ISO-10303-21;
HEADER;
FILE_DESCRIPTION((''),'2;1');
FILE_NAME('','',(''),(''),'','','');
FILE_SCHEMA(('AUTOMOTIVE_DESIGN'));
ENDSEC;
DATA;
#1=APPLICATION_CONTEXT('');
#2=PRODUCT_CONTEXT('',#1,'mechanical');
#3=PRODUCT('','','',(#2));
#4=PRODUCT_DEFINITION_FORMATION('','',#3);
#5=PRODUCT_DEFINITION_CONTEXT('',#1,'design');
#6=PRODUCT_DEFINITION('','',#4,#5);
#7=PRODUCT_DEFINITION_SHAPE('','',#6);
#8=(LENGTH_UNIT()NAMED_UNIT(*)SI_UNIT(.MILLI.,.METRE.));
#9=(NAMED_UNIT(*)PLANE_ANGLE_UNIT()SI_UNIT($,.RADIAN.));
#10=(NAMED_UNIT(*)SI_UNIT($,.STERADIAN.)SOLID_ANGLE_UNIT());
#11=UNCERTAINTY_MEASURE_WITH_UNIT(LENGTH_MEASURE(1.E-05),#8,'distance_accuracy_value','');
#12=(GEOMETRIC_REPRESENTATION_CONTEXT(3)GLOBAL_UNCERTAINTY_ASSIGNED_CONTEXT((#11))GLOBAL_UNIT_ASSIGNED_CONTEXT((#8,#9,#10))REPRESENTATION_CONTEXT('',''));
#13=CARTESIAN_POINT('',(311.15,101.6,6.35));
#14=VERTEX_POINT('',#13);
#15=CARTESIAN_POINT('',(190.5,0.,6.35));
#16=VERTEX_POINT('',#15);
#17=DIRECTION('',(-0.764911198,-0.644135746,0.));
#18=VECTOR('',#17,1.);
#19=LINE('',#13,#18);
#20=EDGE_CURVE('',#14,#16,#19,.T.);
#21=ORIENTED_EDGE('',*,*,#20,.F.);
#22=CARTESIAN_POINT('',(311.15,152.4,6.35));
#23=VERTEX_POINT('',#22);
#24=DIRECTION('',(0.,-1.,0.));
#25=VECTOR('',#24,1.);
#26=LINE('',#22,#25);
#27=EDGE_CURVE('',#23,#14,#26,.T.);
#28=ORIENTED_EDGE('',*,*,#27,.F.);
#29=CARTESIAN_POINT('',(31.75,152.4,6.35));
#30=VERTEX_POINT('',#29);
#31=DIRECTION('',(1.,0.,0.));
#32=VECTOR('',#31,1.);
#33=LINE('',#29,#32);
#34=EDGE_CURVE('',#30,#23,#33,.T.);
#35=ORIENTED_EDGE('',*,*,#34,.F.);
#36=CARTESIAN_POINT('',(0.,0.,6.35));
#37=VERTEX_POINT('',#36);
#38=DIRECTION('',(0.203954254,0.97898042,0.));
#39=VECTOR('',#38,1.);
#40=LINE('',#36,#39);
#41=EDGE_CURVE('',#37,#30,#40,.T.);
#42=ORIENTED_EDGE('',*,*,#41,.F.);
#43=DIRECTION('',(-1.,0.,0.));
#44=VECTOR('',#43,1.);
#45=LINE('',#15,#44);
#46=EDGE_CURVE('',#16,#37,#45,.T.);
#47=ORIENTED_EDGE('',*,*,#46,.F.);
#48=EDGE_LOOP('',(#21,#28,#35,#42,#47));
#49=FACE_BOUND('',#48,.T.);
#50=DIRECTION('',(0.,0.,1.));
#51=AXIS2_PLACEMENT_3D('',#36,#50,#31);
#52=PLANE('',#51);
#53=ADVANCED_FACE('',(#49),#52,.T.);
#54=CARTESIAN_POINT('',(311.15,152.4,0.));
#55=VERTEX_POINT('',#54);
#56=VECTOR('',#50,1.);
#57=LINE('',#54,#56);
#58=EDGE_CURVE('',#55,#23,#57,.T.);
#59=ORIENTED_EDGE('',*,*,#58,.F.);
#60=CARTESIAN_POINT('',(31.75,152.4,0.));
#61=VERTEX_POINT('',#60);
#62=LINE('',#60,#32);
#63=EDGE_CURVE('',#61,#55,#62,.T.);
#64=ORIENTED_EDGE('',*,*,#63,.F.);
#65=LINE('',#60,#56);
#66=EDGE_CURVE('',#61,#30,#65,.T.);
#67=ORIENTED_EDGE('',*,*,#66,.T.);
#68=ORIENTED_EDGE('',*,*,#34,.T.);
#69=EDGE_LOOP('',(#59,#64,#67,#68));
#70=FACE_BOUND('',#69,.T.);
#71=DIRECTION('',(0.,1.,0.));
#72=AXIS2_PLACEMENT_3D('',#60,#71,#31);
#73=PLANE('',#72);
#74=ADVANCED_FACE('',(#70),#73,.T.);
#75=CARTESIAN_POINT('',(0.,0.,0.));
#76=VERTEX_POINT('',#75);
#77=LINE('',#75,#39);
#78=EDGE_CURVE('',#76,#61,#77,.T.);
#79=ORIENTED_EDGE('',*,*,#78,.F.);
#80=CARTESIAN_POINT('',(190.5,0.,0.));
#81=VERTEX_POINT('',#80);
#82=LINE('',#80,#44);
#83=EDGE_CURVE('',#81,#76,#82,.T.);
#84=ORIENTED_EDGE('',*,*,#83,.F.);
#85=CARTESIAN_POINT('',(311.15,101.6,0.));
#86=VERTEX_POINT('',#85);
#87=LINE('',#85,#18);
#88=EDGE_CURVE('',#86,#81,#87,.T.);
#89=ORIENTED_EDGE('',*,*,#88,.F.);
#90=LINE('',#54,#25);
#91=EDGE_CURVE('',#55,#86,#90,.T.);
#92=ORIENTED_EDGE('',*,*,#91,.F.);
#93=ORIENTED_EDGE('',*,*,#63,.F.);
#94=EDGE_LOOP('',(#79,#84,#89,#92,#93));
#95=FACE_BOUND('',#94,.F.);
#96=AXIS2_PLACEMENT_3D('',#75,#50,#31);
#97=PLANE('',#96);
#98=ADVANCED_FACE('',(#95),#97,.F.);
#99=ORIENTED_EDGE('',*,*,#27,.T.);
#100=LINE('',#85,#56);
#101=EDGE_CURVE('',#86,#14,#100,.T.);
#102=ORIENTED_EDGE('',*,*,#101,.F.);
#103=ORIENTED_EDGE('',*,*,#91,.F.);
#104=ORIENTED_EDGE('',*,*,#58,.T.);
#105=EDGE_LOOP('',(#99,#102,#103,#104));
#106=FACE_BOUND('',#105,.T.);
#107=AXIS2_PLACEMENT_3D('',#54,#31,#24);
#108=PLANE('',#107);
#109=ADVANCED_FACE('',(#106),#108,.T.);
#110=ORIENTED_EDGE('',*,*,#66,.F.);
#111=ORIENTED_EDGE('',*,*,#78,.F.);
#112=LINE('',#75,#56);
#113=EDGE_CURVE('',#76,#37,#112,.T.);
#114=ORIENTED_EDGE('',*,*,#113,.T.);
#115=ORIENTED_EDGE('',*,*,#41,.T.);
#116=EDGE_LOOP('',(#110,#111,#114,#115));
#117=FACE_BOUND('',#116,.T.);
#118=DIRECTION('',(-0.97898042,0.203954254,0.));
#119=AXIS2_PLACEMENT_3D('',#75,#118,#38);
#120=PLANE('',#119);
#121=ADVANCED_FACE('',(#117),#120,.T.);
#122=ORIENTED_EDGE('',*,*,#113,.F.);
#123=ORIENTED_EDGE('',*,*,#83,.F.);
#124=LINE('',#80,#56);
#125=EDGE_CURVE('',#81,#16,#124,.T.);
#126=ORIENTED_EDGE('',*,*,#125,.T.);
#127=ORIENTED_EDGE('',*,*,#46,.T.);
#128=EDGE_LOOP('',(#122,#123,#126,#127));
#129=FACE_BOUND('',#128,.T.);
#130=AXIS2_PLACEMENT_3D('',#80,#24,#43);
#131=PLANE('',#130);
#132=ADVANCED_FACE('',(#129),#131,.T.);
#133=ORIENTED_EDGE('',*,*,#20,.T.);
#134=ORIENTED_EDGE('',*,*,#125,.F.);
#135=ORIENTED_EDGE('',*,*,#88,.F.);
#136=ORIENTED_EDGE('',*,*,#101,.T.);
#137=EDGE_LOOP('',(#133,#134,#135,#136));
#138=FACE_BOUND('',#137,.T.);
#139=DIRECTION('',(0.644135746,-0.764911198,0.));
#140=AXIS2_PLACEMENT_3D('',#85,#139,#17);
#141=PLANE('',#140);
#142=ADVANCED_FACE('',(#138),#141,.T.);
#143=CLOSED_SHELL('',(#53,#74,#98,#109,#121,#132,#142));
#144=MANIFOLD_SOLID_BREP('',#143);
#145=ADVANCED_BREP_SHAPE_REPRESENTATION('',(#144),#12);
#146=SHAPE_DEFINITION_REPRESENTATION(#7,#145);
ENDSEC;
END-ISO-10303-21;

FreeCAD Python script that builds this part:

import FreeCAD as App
import Part
import Sketcher

V = App.Vector
Q = App.Units.Quantity

doc = App.newDocument("Part")
body = doc.addObject("PartDesign::Body", "Body")

sketch1 = doc.addObject("Sketcher::SketchObject", "Sketch")
body.addObject(sketch1)
sketch1.AttachmentSupport = (doc.XY_Plane, [""])
sketch1.MapMode = "FlatFace"
sketch1.addGeometry([
    Part.LineSegment(V(31.75, 152.4, 0), V(0, 0, 0)),
    Part.LineSegment(V(0, 0, 0), V(190.5, 0, 0)),
    Part.LineSegment(V(190.5, 0, 0), V(311.15, 101.6, 0)),
    Part.LineSegment(V(311.15, 101.6, 0), V(311.15, 152.4, 0)),
    Part.LineSegment(V(311.15, 152.4, 0), V(31.75, 152.4, 0)),
], False)
sketch1.addConstraint([
    Sketcher.Constraint("Coincident", 0, 2, 1, 1),
    Sketcher.Constraint("Coincident", 1, 2, 2, 1),
    Sketcher.Constraint("Coincident", 2, 2, 3, 1),
    Sketcher.Constraint("Coincident", 3, 2, 4, 1),
    Sketcher.Constraint("Coincident", 4, 2, 0, 1),
    Sketcher.Constraint("Horizontal", 1),
    Sketcher.Constraint("Vertical", 3),
    Sketcher.Constraint("Horizontal", 4),
    Sketcher.Constraint("Coincident", 0, 2, -1, 1),
    Sketcher.Constraint("DistanceX", 4, 2, 4, 1, Q("11 in")),
    Sketcher.Constraint("DistanceY", 3, 1, 3, 2, Q("2 in")),
    Sketcher.Constraint("DistanceX", 1, 1, 1, 2, Q("7.5 in")),
    Sketcher.Constraint("DistanceY", -1, 1, 3, 2, Q("6 in")),
    Sketcher.Constraint("DistanceX", -1, 1, 4, 2, Q("1.25 in")),
])
pad1 = doc.addObject("PartDesign::Pad", "Pad")
body.addObject(pad1)
pad1.Profile = sketch1
pad1.Length = Q("0.25 in")

doc.recompute()
